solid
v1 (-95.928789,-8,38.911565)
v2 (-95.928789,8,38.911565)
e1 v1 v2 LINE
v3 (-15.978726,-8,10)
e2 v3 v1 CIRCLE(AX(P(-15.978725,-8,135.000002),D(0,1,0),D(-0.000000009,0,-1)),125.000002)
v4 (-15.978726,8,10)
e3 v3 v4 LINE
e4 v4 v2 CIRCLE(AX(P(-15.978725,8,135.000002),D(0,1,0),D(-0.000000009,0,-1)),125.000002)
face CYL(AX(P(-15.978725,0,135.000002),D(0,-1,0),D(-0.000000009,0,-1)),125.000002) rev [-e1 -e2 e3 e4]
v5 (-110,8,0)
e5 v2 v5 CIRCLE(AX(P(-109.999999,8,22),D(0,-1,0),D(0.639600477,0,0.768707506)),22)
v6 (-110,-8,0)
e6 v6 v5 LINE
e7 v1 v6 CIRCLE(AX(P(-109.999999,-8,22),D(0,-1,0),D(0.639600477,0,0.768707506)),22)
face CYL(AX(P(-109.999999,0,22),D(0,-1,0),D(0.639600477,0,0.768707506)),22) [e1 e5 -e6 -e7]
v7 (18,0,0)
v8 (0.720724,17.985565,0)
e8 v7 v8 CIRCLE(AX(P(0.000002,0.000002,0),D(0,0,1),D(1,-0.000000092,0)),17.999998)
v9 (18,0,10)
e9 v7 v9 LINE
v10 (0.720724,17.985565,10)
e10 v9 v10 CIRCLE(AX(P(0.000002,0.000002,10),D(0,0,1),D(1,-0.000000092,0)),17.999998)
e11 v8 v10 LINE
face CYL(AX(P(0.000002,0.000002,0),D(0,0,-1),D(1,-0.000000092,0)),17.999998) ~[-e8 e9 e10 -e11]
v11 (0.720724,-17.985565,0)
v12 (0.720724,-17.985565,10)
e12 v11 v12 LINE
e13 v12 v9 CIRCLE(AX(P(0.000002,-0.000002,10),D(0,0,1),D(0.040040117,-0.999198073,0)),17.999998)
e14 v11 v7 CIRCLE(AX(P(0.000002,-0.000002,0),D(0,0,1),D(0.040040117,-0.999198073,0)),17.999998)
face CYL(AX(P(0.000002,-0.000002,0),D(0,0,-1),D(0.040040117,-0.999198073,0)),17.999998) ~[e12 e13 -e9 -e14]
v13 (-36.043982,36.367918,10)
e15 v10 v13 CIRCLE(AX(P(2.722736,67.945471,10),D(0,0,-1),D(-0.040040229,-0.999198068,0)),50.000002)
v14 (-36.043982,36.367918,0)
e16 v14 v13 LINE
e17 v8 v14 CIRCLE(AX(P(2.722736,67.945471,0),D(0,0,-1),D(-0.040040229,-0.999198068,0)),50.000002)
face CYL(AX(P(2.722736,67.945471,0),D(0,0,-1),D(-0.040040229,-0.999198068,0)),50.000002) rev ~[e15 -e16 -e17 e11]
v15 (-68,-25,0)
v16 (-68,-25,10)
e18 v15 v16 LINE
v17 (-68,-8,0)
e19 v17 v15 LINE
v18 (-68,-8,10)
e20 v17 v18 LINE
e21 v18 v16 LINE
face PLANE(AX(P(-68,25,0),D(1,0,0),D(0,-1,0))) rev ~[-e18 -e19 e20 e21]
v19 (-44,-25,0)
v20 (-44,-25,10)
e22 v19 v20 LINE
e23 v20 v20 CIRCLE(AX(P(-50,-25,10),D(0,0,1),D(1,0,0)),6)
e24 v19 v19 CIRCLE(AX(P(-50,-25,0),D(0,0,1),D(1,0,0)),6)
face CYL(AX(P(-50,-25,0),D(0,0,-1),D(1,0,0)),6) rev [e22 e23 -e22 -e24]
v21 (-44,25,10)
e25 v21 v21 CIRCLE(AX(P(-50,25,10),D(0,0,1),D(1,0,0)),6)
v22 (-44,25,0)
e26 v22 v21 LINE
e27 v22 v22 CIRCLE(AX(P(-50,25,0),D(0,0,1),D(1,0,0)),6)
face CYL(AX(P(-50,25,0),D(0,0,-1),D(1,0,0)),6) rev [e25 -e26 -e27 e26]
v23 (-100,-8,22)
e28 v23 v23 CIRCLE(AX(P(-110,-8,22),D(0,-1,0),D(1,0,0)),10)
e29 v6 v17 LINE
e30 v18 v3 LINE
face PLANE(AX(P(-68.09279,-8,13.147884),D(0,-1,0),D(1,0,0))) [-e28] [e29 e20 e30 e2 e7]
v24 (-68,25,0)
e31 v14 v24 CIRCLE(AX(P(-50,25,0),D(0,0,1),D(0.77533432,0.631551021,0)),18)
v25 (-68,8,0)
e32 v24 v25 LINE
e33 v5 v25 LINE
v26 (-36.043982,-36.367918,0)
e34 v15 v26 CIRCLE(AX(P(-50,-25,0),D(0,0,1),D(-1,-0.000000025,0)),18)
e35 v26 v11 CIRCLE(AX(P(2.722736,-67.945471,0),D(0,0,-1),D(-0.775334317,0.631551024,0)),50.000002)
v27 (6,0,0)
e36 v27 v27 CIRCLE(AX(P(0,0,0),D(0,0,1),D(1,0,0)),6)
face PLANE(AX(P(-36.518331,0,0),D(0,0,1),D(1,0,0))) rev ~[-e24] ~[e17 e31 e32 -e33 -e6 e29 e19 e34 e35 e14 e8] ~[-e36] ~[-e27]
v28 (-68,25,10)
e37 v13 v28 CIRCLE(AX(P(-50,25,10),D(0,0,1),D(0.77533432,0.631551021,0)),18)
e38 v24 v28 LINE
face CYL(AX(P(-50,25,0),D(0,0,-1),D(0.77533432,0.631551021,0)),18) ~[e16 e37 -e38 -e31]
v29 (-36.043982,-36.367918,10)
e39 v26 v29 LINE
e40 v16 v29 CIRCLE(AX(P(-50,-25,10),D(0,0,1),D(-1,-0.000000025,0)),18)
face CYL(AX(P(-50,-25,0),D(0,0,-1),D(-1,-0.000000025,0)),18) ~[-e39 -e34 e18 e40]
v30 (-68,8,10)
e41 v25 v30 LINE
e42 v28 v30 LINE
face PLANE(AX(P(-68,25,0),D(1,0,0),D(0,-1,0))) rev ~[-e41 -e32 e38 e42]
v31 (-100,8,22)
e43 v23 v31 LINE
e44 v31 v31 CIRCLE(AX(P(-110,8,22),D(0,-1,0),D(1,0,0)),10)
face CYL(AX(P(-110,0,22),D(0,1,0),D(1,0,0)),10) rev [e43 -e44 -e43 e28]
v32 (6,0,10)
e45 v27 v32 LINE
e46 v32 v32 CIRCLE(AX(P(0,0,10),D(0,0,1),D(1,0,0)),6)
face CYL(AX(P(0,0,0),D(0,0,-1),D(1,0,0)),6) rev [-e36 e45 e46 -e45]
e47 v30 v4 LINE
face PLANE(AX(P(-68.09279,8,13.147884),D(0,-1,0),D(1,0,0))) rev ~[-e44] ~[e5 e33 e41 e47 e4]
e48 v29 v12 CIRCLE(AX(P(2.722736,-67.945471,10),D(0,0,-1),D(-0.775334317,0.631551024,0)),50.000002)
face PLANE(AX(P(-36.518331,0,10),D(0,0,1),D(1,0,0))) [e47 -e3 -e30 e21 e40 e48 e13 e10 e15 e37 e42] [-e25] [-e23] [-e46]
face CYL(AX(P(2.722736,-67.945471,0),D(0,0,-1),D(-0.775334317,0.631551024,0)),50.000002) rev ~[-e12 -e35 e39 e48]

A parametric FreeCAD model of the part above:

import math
import FreeCAD as App
import Part
import Sketcher
Q = App.Units.Quantity

doc = App.newDocument("Part")
params = doc.addObject("Spreadsheet::Sheet", "Params")
for row, (alias, value) in enumerate([
    ("sketch1_diameter", "12 mm"),
    ("sketch1_radius", "17.999998 mm"),
    ("sketch1_radius2", "18 mm"),
    ("sketch1_height", "50 mm"),
    ("pad1_length", "10 mm"),
    ("sketch2_diameter", "20 mm"),
    ("sketch2_radius", "125.000002 mm"),
    ("sketch2_radius2", "22 mm"),
    ("sketch2_width", "42 mm"),
    ("sketch2_height", "10 mm"),
    ("pad2_length", "16 mm"),
], start=1):
    params.set(f"A{row}", alias)
    params.set(f"B{row}", "=" + value)
    params.setAlias(f"B{row}", alias)

body = doc.addObject("PartDesign::Body", "Body")

# Sketch on XY plane
sketch1 = body.newObject("Sketcher::SketchObject", "Sketch")
sketch1.AttachmentSupport = (doc.getObject("XY_Plane"), [""])
sketch1.MapMode = "FlatFace"
sketch1.addGeometry(Part.ArcOfCircle(Part.Circle(App.Vector(3, -68, 0), App.Vector(0, 0, 1), 50), math.radians(92), math.radians(141)), False)
sketch1.addGeometry(Part.ArcOfCircle(Part.Circle(App.Vector(0, 0, 0), App.Vector(0, 0, 1), 18), math.radians(-88), math.radians(0)), False)
sketch1.addGeometry(Part.ArcOfCircle(Part.Circle(App.Vector(0, 0, 0), App.Vector(0, 0, 1), 18), math.radians(0), math.radians(88)), False)
sketch1.addGeometry(Part.ArcOfCircle(Part.Circle(App.Vector(3, 68, 0), App.Vector(0, 0, 1), 50), math.radians(-141), math.radians(-92)), False)
sketch1.addGeometry(Part.ArcOfCircle(Part.Circle(App.Vector(-50, 25, 0), App.Vector(0, 0, 1), 18), math.radians(39), math.radians(180)), False)
sketch1.addGeometry(Part.LineSegment(App.Vector(-68, 25, 0), App.Vector(-68, -25, 0)), False)
sketch1.addGeometry(Part.ArcOfCircle(Part.Circle(App.Vector(-50, -25, 0), App.Vector(0, 0, 1), 18), math.radians(-180), math.radians(-39)), False)
sketch1.addGeometry(Part.Circle(App.Vector(-50, -25, 0), App.Vector(0, 0, 1), 6), False)
sketch1.addGeometry(Part.Circle(App.Vector(-50, 25, 0), App.Vector(0, 0, 1), 6), False)
sketch1.addGeometry(Part.Circle(App.Vector(0, 0, 0), App.Vector(0, 0, 1), 6), False)
sketch1.addConstraint(Sketcher.Constraint("Tangent", 0, 1, 1, 1))
sketch1.addConstraint(Sketcher.Constraint("Tangent", 1, 2, 2, 1))
sketch1.addConstraint(Sketcher.Constraint("Tangent", 2, 2, 3, 2))
sketch1.addConstraint(Sketcher.Constraint("Tangent", 3, 1, 4, 1))
sketch1.addConstraint(Sketcher.Constraint("Tangent", 4, 2, 5, 1))
sketch1.addConstraint(Sketcher.Constraint("Tangent", 5, 2, 6, 1))
sketch1.addConstraint(Sketcher.Constraint("Tangent", 6, 2, 0, 2))
sketch1.addConstraint(Sketcher.Constraint("Vertical", 5))
sketch1.addConstraint(Sketcher.Constraint("Coincident", 1, 3, -1, 1))
sketch1.addConstraint(Sketcher.Constraint("Coincident", 9, 3, -1, 1))
sketch1.addConstraint(Sketcher.Constraint("Coincident", 7, 3, 6, 3))
sketch1.addConstraint(Sketcher.Constraint("Coincident", 8, 3, 4, 3))
sketch1.addConstraint(Sketcher.Constraint("Equal", 1, 2))
sketch1.addConstraint(Sketcher.Constraint("Equal", 0, 3))
sketch1.addConstraint(Sketcher.Constraint("Equal", 4, 6))
sketch1.addConstraint(Sketcher.Constraint("Equal", 7, 8))
sketch1.addConstraint(Sketcher.Constraint("Equal", 8, 9))
sketch1.addConstraint(Sketcher.Constraint("PointOnObject", 1, 2, -1))
sketch1.addConstraint(Sketcher.Constraint("Vertical", 0, 3, 3, 3))
sketch1.addConstraint(Sketcher.Constraint("Diameter", 7, Q("12 mm")))
sketch1.addConstraint(Sketcher.Constraint("Radius", 1, Q("17.999998 mm")))
sketch1.addConstraint(Sketcher.Constraint("Radius", 4, Q("18 mm")))
sketch1.addConstraint(Sketcher.Constraint("DistanceY", 5, 2, 5, 1, Q("50 mm")))
sketch1.addConstraint(Sketcher.Constraint("DistanceX", 4, 3, -1, 1, Q("50 mm")))
sketch1.addConstraint(Sketcher.Constraint("Radius", 0, Q("50.000002 mm")))
sketch1.setExpression("Constraints[19]", "Params.sketch1_diameter")
sketch1.setExpression("Constraints[20]", "Params.sketch1_radius")
sketch1.setExpression("Constraints[21]", "Params.sketch1_radius2")
sketch1.setExpression("Constraints[22]", "Params.sketch1_height")
pad1 = body.newObject("PartDesign::Pad", "Pad")
pad1.Profile = sketch1
pad1.setExpression("Length", "Params.pad1_length")

# Sketch on XZ plane
sketch2 = body.newObject("Sketcher::SketchObject", "Sketch001")
sketch2.AttachmentSupport = (doc.getObject("XZ_Plane"), [""])
sketch2.MapMode = "FlatFace"
sketch2.addGeometry(Part.LineSegment(App.Vector(-110, 0, 0), App.Vector(-68, 0, 0)), False)
sketch2.addGeometry(Part.LineSegment(App.Vector(-68, 0, 0), App.Vector(-68, 10, 0)), False)
sketch2.addGeometry(Part.LineSegment(App.Vector(-68, 10, 0), App.Vector(-16, 10, 0)), False)
sketch2.addGeometry(Part.ArcOfCircle(Part.Circle(App.Vector(-16, 135, 0), App.Vector(0, 0, 1), 125), math.radians(-130), math.radians(-90)), False)
sketch2.addGeometry(Part.ArcOfCircle(Part.Circle(App.Vector(-110, 22, 0), App.Vector(0, 0, 1), 22), math.radians(50), math.radians(270)), False)
sketch2.addGeometry(Part.Circle(App.Vector(-110, 22, 0), App.Vector(0, 0, 1), 10), False)
sketch2.addConstraint(Sketcher.Constraint("Coincident", 0, 2, 1, 1))
sketch2.addConstraint(Sketcher.Constraint("Coincident", 1, 2, 2, 1))
sketch2.addConstraint(Sketcher.Constraint("Tangent", 2, 2, 3, 2))
sketch2.addConstraint(Sketcher.Constraint("Tangent", 3, 1, 4, 1))
sketch2.addConstraint(Sketcher.Constraint("Tangent", 4, 2, 0, 1))
sketch2.addConstraint(Sketcher.Constraint("Horizontal", 0))
sketch2.addConstraint(Sketcher.Constraint("Vertical", 1))
sketch2.addConstraint(Sketcher.Constraint("Horizontal", 2))
sketch2.addConstraint(Sketcher.Constraint("Coincident", 5, 3, 4, 3))
sketch2.addConstraint(Sketcher.Constraint("PointOnObject", 0, 2, -1))
sketch2.addConstraint(Sketcher.Constraint("Diameter", 5, Q("20 mm")))
sketch2.addConstraint(Sketcher.Constraint("Radius", 3, Q("125.000002 mm")))
sketch2.addConstraint(Sketcher.Constraint("Radius", 4, Q("22 mm")))
sketch2.addConstraint(Sketcher.Constraint("DistanceX", 0, 1, 0, 2, Q("42 mm")))
sketch2.addConstraint(Sketcher.Constraint("DistanceY", 1, 1, 1, 2, Q("10 mm")))
sketch2.addConstraint(Sketcher.Constraint("DistanceX", 4, 3, -1, 1, Q("109.999999 mm")))
sketch2.setExpression("Constraints[10]", "Params.sketch2_diameter")
sketch2.setExpression("Constraints[11]", "Params.sketch2_radius")
sketch2.setExpression("Constraints[12]", "Params.sketch2_radius2")
sketch2.setExpression("Constraints[13]", "Params.sketch2_width")
sketch2.setExpression("Constraints[14]", "Params.sketch2_height")
pad2 = body.newObject("PartDesign::Pad", "Pad001")
pad2.Profile = sketch2
pad2.setExpression("Length", "Params.pad2_length")
pad2.Midplane = True

doc.recompute()
